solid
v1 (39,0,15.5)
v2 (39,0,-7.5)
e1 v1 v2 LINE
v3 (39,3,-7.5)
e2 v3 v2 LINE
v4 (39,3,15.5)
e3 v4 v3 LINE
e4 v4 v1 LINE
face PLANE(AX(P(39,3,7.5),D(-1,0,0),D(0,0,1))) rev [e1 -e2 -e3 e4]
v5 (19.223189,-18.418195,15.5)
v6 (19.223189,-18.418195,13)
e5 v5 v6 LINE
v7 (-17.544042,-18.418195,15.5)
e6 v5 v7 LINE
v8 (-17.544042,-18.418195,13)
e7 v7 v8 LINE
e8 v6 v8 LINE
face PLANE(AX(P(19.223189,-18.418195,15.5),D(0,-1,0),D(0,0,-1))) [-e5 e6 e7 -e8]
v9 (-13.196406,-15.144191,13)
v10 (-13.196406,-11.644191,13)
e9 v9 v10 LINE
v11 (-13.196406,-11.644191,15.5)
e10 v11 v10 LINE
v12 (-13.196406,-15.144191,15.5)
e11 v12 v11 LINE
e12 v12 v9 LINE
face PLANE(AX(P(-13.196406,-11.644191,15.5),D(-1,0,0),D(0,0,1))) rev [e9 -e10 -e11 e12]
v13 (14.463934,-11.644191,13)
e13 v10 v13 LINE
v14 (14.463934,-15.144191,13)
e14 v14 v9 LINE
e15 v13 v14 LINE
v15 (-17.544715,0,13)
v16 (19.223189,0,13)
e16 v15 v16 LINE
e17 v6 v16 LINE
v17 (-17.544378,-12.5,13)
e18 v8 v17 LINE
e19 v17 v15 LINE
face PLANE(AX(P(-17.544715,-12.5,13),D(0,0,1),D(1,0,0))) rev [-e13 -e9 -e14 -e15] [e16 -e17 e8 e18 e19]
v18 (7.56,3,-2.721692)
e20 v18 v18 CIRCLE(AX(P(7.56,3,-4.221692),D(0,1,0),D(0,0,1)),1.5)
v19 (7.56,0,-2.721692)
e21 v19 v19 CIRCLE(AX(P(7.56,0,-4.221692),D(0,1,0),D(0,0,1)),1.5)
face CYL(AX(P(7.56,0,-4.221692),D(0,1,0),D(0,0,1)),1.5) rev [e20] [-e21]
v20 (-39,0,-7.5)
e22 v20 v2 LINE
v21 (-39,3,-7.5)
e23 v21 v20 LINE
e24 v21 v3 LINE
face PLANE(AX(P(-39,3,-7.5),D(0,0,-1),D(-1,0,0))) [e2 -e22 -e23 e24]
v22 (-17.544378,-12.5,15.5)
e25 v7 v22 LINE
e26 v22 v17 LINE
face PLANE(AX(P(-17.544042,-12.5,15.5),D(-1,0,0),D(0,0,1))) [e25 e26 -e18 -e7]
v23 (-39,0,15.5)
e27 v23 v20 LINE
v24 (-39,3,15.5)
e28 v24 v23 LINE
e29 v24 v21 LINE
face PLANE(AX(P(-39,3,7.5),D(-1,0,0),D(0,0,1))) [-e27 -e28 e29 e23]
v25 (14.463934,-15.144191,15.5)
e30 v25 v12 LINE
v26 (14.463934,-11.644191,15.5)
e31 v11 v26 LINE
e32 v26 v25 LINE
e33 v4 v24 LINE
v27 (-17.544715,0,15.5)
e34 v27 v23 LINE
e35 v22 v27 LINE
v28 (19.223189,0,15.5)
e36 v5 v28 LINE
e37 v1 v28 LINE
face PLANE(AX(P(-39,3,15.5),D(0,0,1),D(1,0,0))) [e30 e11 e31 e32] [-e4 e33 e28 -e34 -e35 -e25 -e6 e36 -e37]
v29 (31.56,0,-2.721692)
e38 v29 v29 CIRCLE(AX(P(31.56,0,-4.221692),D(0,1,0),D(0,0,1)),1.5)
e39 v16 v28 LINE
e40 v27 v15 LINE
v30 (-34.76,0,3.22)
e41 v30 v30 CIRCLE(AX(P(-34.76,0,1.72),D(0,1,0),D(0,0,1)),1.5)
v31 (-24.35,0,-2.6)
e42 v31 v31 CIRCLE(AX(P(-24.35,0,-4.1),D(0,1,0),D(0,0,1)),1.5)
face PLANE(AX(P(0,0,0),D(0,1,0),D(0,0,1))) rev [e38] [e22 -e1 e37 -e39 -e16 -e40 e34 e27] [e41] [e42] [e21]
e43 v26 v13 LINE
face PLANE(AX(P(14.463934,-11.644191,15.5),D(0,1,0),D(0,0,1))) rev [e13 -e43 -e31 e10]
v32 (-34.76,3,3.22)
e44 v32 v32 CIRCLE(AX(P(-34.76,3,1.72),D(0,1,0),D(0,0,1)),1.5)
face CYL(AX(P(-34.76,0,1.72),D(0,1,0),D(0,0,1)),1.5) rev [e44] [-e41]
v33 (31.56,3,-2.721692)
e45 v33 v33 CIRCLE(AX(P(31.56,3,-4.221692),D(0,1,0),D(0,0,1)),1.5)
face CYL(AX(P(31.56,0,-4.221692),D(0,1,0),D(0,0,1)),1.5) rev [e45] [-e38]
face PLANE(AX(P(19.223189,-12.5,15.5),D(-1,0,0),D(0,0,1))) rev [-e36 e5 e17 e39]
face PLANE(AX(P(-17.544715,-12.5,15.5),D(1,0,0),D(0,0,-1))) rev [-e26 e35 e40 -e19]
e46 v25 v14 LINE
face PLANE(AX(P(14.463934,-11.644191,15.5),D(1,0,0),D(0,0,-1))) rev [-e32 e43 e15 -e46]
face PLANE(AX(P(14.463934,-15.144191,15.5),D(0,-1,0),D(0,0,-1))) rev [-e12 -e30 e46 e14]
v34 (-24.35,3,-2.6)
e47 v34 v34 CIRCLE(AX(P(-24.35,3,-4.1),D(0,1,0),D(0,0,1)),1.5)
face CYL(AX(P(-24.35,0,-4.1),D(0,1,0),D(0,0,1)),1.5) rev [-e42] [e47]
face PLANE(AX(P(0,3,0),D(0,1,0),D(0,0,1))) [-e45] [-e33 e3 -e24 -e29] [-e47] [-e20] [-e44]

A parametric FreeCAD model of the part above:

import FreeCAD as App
import Part
import Sketcher
from FreeCAD import Vector
Q = App.Units.Quantity


def add_polygon(sketch, points):
    """Adds a closed chain of lines whose ends are joined by coincident constraints."""
    first, n = sketch.GeometryCount, len(points)
    for a, b in zip(points, points[1:] + points[:1]):
        sketch.addGeometry(Part.LineSegment(App.Vector(*a, 0), App.Vector(*b, 0)), False)
    for i in range(n):
        sketch.addConstraint(Sketcher.Constraint("Coincident", first + i, 2, first + (i + 1) % n, 1))

doc = App.newDocument("Part")
body = doc.addObject("PartDesign::Body", "Body")

# Sketch on XZ plane
sketch1 = body.newObject("Sketcher::SketchObject", "Sketch")
sketch1.AttachmentSupport = (doc.getObject("XZ_Plane"), [""])
sketch1.MapMode = "FlatFace"
add_polygon(sketch1, [(-39, -8), (-39, 8), (39, 8), (39, -8)])  # lines 0-3
sketch1.addConstraint(Sketcher.Constraint("Vertical", 0))
sketch1.addConstraint(Sketcher.Constraint("Horizontal", 1))
sketch1.addConstraint(Sketcher.Constraint("Vertical", 2))
sketch1.addConstraint(Sketcher.Constraint("Horizontal", 3))
sketch1.addConstraint(Sketcher.Constraint("Symmetric", 0, 2, 2, 2, -1, 1))
sketch1.addConstraint(Sketcher.Constraint("DistanceX", 1, 1, 1, 2, Q("78 mm")))
sketch1.addConstraint(Sketcher.Constraint("DistanceY", 0, 1, 0, 2, Q("15 mm")))
pad1 = body.newObject("PartDesign::Pad", "Pad")
pad1.Profile = sketch1
pad1.Length = 3
pad1.Reversed = True

# Sketch on XZ plane
sketch2 = body.newObject("Sketcher::SketchObject", "Sketch001")
sketch2.AttachmentSupport = (doc.getObject("XZ_Plane"), [""])
sketch2.MapMode = "FlatFace"
sketch2.AttachmentOffset = App.Placement(Vector(0, 0, -3), App.Rotation())
sketch2.addGeometry(Part.Circle(Vector(-34.8, 1.7, 0), Vector(0, 0, 1), 1.5), False)
sketch2.addGeometry(Part.Circle(Vector(-24.4, -4.1, 0), Vector(0, 0, 1), 1.5), False)
sketch2.addGeometry(Part.Circle(Vector(31.6, -4.2, 0), Vector(0, 0, 1), 1.5), False)
sketch2.addGeometry(Part.Circle(Vector(7.6, -4.2, 0), Vector(0, 0, 1), 1.5), False)
sketch2.addConstraint(Sketcher.Constraint("Equal", 0, 1))
sketch2.addConstraint(Sketcher.Constraint("Equal", 1, 2))
sketch2.addConstraint(Sketcher.Constraint("Equal", 2, 3))
sketch2.addConstraint(Sketcher.Constraint("Horizontal", 2, 3, 3, 3))
sketch2.addConstraint(Sketcher.Constraint("Diameter", 0, Q("3 mm")))
sketch2.addConstraint(Sketcher.Constraint("DistanceX", 3, 3, 2, 3, Q("24 mm")))
sketch2.addConstraint(Sketcher.Constraint("DistanceY", 1, 3, -1, 1, Q("4.1 mm")))
sketch2.addConstraint(Sketcher.Constraint("DistanceX", 0, 3, -1, 1, Q("34.76 mm")))
sketch2.addConstraint(Sketcher.Constraint("DistanceY", -1, 1, 0, 3, Q("1.72 mm")))
sketch2.addConstraint(Sketcher.Constraint("DistanceX", 1, 3, -1, 1, Q("24.35 mm")))
sketch2.addConstraint(Sketcher.Constraint("DistanceX", -1, 1, 2, 3, Q("31.56 mm")))
sketch2.addConstraint(Sketcher.Constraint("DistanceY", 2, 3, -1, 1, Q("4.221692 mm")))
pocket1 = body.newObject("PartDesign::Pocket", "Pocket")
pocket1.Profile = sketch2
pocket1.Length = 3
pocket1.Reversed = True

# Sketch on XZ plane
sketch3 = body.newObject("Sketcher::SketchObject", "Sketch002")
sketch3.AttachmentSupport = (doc.getObject("XZ_Plane"), [""])
sketch3.MapMode = "FlatFace"
sketch3.AttachmentOffset = App.Placement(Vector(0, 0, -3), App.Rotation())
sketch3.addGeometry(Part.Circle(Vector(-3, 1, 0), Vector(0, 0, 1), 6), False)
sketch3.addConstraint(Sketcher.Constraint("Diameter", 0, Q("12 mm")))
sketch3.addConstraint(Sketcher.Constraint("DistanceX", 0, 3, -1, 1, Q("3 mm")))
sketch3.addConstraint(Sketcher.Constraint("DistanceY", -1, 1, 0, 3, Q("1.234165 mm")))
pad2 = body.newObject("PartDesign::Pad", "Pad001")
pad2.Profile = sketch3
pad2.Length = 18
pad2.Reversed = True

# Sketch on XZ plane
sketch4 = body.newObject("Sketcher::SketchObject", "Sketch003")
sketch4.AttachmentSupport = (doc.getObject("XZ_Plane"), [""])
sketch4.MapMode = "FlatFace"
sketch4.AttachmentOffset = App.Placement(Vector(0, 0, -21), App.Rotation())
sketch4.addGeometry(Part.Circle(Vector(-3, 1.2, 0), Vector(0, 0, 1), 4.5), False)
sketch4.addConstraint(Sketcher.Constraint("Diameter", 0, Q("9 mm")))
sketch4.addConstraint(Sketcher.Constraint("DistanceX", 0, 3, -1, 1, Q("3 mm")))
sketch4.addConstraint(Sketcher.Constraint("DistanceY", -1, 1, 0, 3, Q("1.234165 mm")))
pocket2 = body.newObject("PartDesign::Pocket", "Pocket001")
pocket2.Profile = sketch4
pocket2.Length = 21
pocket2.Reversed = True

# Sketch on an angled plane
sketch5 = body.newObject("Sketcher::SketchObject", "Sketch004")
sketch5.Placement = App.Placement(Vector(-7.484763, 0, 5.284905), App.Rotation(Vector(-0.576795601, 0, -0.816888508), Vector(0, -1, 0), Vector(-0.816888508, 0, 0.576795601), "ZXY"))
sketch5.addGeometry(Part.Circle(Vector(0.7, -17.3, 0), Vector(0, 0, 1), 1.5), False)
sketch5.addConstraint(Sketcher.Constraint("Diameter", 0, Q("3 mm")))
sketch5.addConstraint(Sketcher.Constraint("DistanceX", -1, 1, 0, 3, Q("0.722211 mm")))
sketch5.addConstraint(Sketcher.Constraint("DistanceY", 0, 3, -1, 1, Q("17.342107 mm")))
doc.recompute()
hole = body.newObject("PartDesign::Hole", "Hole")
hole.Profile = sketch5
hole.ThreadType = "None"
hole.Diameter = 3
hole.DepthType = "Dimension"
hole.Depth = 4.5
hole.DrillPoint = "Angled"
hole.DrillPointAngle = 90

# Sketch on an angled plane
sketch6 = body.newObject("Sketcher::SketchObject", "Sketch005")
sketch6.Placement = App.Placement(Vector(3.305316, 0, 3.577367), App.Rotation(Vector(0.734483043, 0, -0.67862704), Vector(0, 1, 0), Vector(0.67862704, 0, 0.734483043), "ZXY"))
sketch6.addGeometry(Part.Circle(Vector(-3, 17.2, 0), Vector(0, 0, 1), 1.5), False)
sketch6.addConstraint(Sketcher.Constraint("Diameter", 0, Q("3 mm")))
sketch6.addConstraint(Sketcher.Constraint("DistanceX", 0, 3, -1, 1, Q("3.040983 mm")))
sketch6.addConstraint(Sketcher.Constraint("DistanceY", -1, 1, 0, 3, Q("17.164817 mm")))
doc.recompute()
hole2 = body.newObject("PartDesign::Hole", "Hole001")
hole2.Profile = sketch6
hole2.ThreadType = "None"
hole2.Diameter = 3
hole2.DepthType = "Dimension"
hole2.Depth = 4.5
hole2.DrillPoint = "Angled"
hole2.DrillPointAngle = 90

# Sketch on XY plane
sketch7 = body.newObject("Sketcher::SketchObject", "Sketch006")
sketch7.AttachmentSupport = (doc.getObject("XY_Plane"), [""])
sketch7.MapMode = "FlatFace"
sketch7.AttachmentOffset = App.Placement(Vector(0, 0, -7.5), App.Rotation())
add_polygon(sketch7, [(0, 13), (0, 3), (-6, 3), (-6, 13)])  # lines 0-3
sketch7.addConstraint(Sketcher.Constraint("Vertical", 0))
sketch7.addConstraint(Sketcher.Constraint("Horizontal", 1))
sketch7.addConstraint(Sketcher.Constraint("Vertical", 2))
sketch7.addConstraint(Sketcher.Constraint("Horizontal", 3))
sketch7.addConstraint(Sketcher.Constraint("PointOnObject", 0, 2, -2))
sketch7.addConstraint(Sketcher.Constraint("DistanceX", 1, 2, 1, 1, Q("6 mm")))
sketch7.addConstraint(Sketcher.Constraint("DistanceY", 0, 2, 0, 1, Q("10 mm")))
sketch7.addConstraint(Sketcher.Constraint("DistanceY", -1, 1, 0, 2, Q("3 mm")))
pocket3 = body.newObject("PartDesign::Pocket", "Pocket002")
pocket3.Profile = sketch7
pocket3.Length = 7
pocket3.Reversed = True

# Sketch on XY plane
sketch8 = body.newObject("Sketcher::SketchObject", "Sketch007")
sketch8.AttachmentSupport = (doc.getObject("XY_Plane"), [""])
sketch8.MapMode = "FlatFace"
sketch8.AttachmentOffset = App.Placement(Vector(0, 0, -7.5), App.Rotation())
add_polygon(sketch8, [(7, 25), (7, 3), (-13, 3), (-13, 25)])  # lines 0-3
sketch8.addConstraint(Sketcher.Constraint("Vertical", 0))
sketch8.addConstraint(Sketcher.Constraint("Horizontal", 1))
sketch8.addConstraint(Sketcher.Constraint("Vertical", 2))
sketch8.addConstraint(Sketcher.Constraint("Horizontal", 3))
sketch8.addConstraint(Sketcher.Constraint("DistanceY", -1, 1, 0, 2, Q("3 mm")))
sketch8.addConstraint(Sketcher.Constraint("DistanceX", 1, 2, 1, 1, Q("19.835687 mm")))
sketch8.addConstraint(Sketcher.Constraint("DistanceY", 0, 2, 0, 1, Q("21.610205 mm")))
sketch8.addConstraint(Sketcher.Constraint("DistanceX", -1, 1, 0, 2, Q("6.603423 mm")))
pocket4 = body.newObject("PartDesign::Pocket", "Pocket003")
pocket4.Profile = sketch8
pocket4.Length = 20
pocket4.Reversed = True

# Sketch on XZ plane
sketch9 = body.newObject("Sketcher::SketchObject", "Sketch008")
sketch9.AttachmentSupport = (doc.getObject("XZ_Plane"), [""])
sketch9.MapMode = "FlatFace"
sketch9.AttachmentOffset = App.Placement(Vector(0, 0, -3), App.Rotation())
add_polygon(sketch9, [(-9, -4), (-9, 7), (3, 7), (3, -4)])  # lines 0-3
sketch9.addConstraint(Sketcher.Constraint("Vertical", 0))
sketch9.addConstraint(Sketcher.Constraint("Horizontal", 1))
sketch9.addConstraint(Sketcher.Constraint("Vertical", 2))
sketch9.addConstraint(Sketcher.Constraint("Horizontal", 3))
sketch9.addConstraint(Sketcher.Constraint("DistanceX", 1, 1, 1, 2, Q("11.523038 mm")))
sketch9.addConstraint(Sketcher.Constraint("DistanceY", 0, 1, 0, 2, Q("10.490313 mm")))
sketch9.addConstraint(Sketcher.Constraint("DistanceY", -1, 1, 0, 2, Q("6.50865 mm")))
sketch9.addConstraint(Sketcher.Constraint("DistanceX", -1, 1, 1, 2, Q("2.772052 mm")))
pad3 = body.newObject("PartDesign::Pad", "Pad002")
pad3.Profile = sketch9
pad3.Length = 3

# Sketch on XZ plane
sketch10 = body.newObject("Sketcher::SketchObject", "Sketch009")
sketch10.AttachmentSupport = (doc.getObject("XZ_Plane"), [""])
sketch10.MapMode = "FlatFace"
add_polygon(sketch10, [(-39, 16), (-39, 8), (39, 8), (39, 16)])  # lines 0-3
sketch10.addConstraint(Sketcher.Constraint("Vertical", 0))
sketch10.addConstraint(Sketcher.Constraint("Horizontal", 1))
sketch10.addConstraint(Sketcher.Constraint("Vertical", 2))
sketch10.addConstraint(Sketcher.Constraint("Horizontal", 3))
sketch10.addConstraint(Sketcher.Constraint("DistanceX", 1, 1, 1, 2, Q("78 mm")))
sketch10.addConstraint(Sketcher.Constraint("DistanceY", 0, 2, 0, 1, Q("8 mm")))
sketch10.addConstraint(Sketcher.Constraint("DistanceX", 0, 2, -1, 1, Q("39 mm")))
sketch10.addConstraint(Sketcher.Constraint("DistanceY", -1, 1, 0, 2, Q("7.5 mm")))
pad4 = body.newObject("PartDesign::Pad", "Pad003")
pad4.Profile = sketch10
pad4.Length = 3
pad4.Reversed = True

# Sketch on XZ plane
sketch11 = body.newObject("Sketcher::SketchObject", "Sketch010")
sketch11.AttachmentSupport = (doc.getObject("XZ_Plane"), [""])
sketch11.MapMode = "FlatFace"
add_polygon(sketch11, [(-17.5, 15.5), (-17.5, 13), (19.2, 13), (19.2, 15.5)])  # lines 0-3
sketch11.addConstraint(Sketcher.Constraint("Vertical", 0))
sketch11.addConstraint(Sketcher.Constraint("Horizontal", 1))
sketch11.addConstraint(Sketcher.Constraint("Vertical", 2))
sketch11.addConstraint(Sketcher.Constraint("Horizontal", 3))
sketch11.addConstraint(Sketcher.Constraint("DistanceY", 0, 2, 0, 1, Q("2.5 mm")))
sketch11.addConstraint(Sketcher.Constraint("DistanceY", -1, 1, 0, 2, Q("13 mm")))
sketch11.addConstraint(Sketcher.Constraint("DistanceX", 1, 1, 1, 2, Q("36.767904 mm")))
sketch11.addConstraint(Sketcher.Constraint("DistanceX", -1, 1, 1, 2, Q("19.223189 mm")))
pad5 = body.newObject("PartDesign::Pad", "Pad004")
pad5.Profile = sketch11
pad5.Length = 12.5

# Sketch on XY plane
sketch12 = body.newObject("Sketcher::SketchObject", "Sketch011")
sketch12.AttachmentSupport = (doc.getObject("XY_Plane"), [""])
sketch12.MapMode = "FlatFace"
sketch12.AttachmentOffset = App.Placement(Vector(0, 0, 13), App.Rotation())
sketch12.addGeometry(Part.Circle(Vector(8.6, -6.1, 0), Vector(0, 0, 1), 1.6), False)
sketch12.addGeometry(Part.Circle(Vector(-2.6, -6.1, 0), Vector(0, 0, 1), 1.6), False)
sketch12.addConstraint(Sketcher.Constraint("Equal", 0, 1))
sketch12.addConstraint(Sketcher.Constraint("Horizontal", 0, 3, 1, 3))
sketch12.addConstraint(Sketcher.Constraint("Diameter", 0, Q("3.3 mm")))
sketch12.addConstraint(Sketcher.Constraint("DistanceX", 1, 3, 0, 3, Q("11.2 mm")))
sketch12.addConstraint(Sketcher.Constraint("DistanceX", -1, 1, 0, 3, Q("8.603189 mm")))
sketch12.addConstraint(Sketcher.Constraint("DistanceY", 0, 3, -1, 1, Q("6.055923 mm")))
pocket5 = body.newObject("PartDesign::Pocket", "Pocket004")
pocket5.Profile = sketch12
pocket5.Length = 12.5
pocket5.Reversed = True

# Sketch on XY plane
sketch13 = body.newObject("Sketcher::SketchObject", "Sketch012")
sketch13.AttachmentSupport = (doc.getObject("XY_Plane"), [""])
sketch13.MapMode = "FlatFace"
sketch13.AttachmentOffset = App.Placement(Vector(0, 0, 13), App.Rotation())
add_polygon(sketch13, [(-0.2, -3.7), (-0.2, -9.1), (-4.4, -9.1), (-4.4, -3.7)])  # lines 0-3
sketch13.addConstraint(Sketcher.Constraint("Vertical", 0))
sketch13.addConstraint(Sketcher.Constraint("Horizontal", 1))
sketch13.addConstraint(Sketcher.Constraint("Vertical", 2))
sketch13.addConstraint(Sketcher.Constraint("Horizontal", 3))
sketch13.addConstraint(Sketcher.Constraint("DistanceY", 0, 2, 0, 1, Q("5.364092 mm")))
sketch13.addConstraint(Sketcher.Constraint("DistanceX", 1, 2, 1, 1, Q("4.236608 mm")))
sketch13.addConstraint(Sketcher.Constraint("DistanceX", 0, 2, -1, 1, Q("0.212365 mm")))
sketch13.addConstraint(Sketcher.Constraint("DistanceY", 0, 2, -1, 1, Q("9.108527 mm")))
pad6 = body.newObject("PartDesign::Pad", "Pad005")
pad6.Profile = sketch13
pad6.Length = 2.5

# Sketch on XY plane
sketch14 = body.newObject("Sketcher::SketchObject", "Sketch013")
sketch14.AttachmentSupport = (doc.getObject("XY_Plane"), [""])
sketch14.MapMode = "FlatFace"
sketch14.AttachmentOffset = App.Placement(Vector(0, 0, 13), App.Rotation())
sketch14.addGeometry(Part.Circle(Vector(-4.2, -6.1, 0), Vector(0, 0, 1), 1.6), False)
sketch14.addConstraint(Sketcher.Constraint("Diameter", 0, Q("3.2 mm")))
sketch14.addConstraint(Sketcher.Constraint("DistanceX", 0, 3, -1, 1, Q("4.196811 mm")))
sketch14.addConstraint(Sketcher.Constraint("DistanceY", 0, 3, -1, 1, Q("6.055923 mm")))
pocket6 = body.newObject("PartDesign::Pocket", "Pocket005")
pocket6.Profile = sketch14
pocket6.Length = 2.5
pocket6.Reversed = True

# Sketch on XY plane
sketch15 = body.newObject("Sketcher::SketchObject", "Sketch014")
sketch15.AttachmentSupport = (doc.getObject("XY_Plane"), [""])
sketch15.MapMode = "FlatFace"
sketch15.AttachmentOffset = App.Placement(Vector(0, 0, 13), App.Rotation())
add_polygon(sketch15, [(13, -3), (13, -10), (-8, -10), (-8, -3)])  # lines 0-3
sketch15.addConstraint(Sketcher.Constraint("Vertical", 0))
sketch15.addConstraint(Sketcher.Constraint("Horizontal", 1))
sketch15.addConstraint(Sketcher.Constraint("Vertical", 2))
sketch15.addConstraint(Sketcher.Constraint("Horizontal", 3))
sketch15.addConstraint(Sketcher.Constraint("DistanceX", 1, 2, 1, 1, Q("21.346012 mm")))
sketch15.addConstraint(Sketcher.Constraint("DistanceY", 0, 2, 0, 1, Q("6.594355 mm")))
sketch15.addConstraint(Sketcher.Constraint("DistanceY", 0, 2, -1, 1, Q("9.988919 mm")))
sketch15.addConstraint(Sketcher.Constraint("DistanceX", 1, 2, -1, 1, Q("8.29369 mm")))
pad7 = body.newObject("PartDesign::Pad", "Pad006")
pad7.Profile = sketch15
pad7.Length = 2.5

# Sketch on XY plane
sketch16 = body.newObject("Sketcher::SketchObject", "Sketch015")
sketch16.AttachmentSupport = (doc.getObject("XY_Plane"), [""])
sketch16.MapMode = "FlatFace"
sketch16.AttachmentOffset = App.Placement(Vector(0, 0, 13), App.Rotation())
add_polygon(sketch16, [(19, -12), (19, -18), (-18, -18), (-18, -12)])  # lines 0-3
sketch16.addConstraint(Sketcher.Constraint("Vertical", 0))
sketch16.addConstraint(Sketcher.Constraint("Horizontal", 1))
sketch16.addConstraint(Sketcher.Constraint("Vertical", 2))
sketch16.addConstraint(Sketcher.Constraint("Horizontal", 3))
sketch16.addConstraint(Sketcher.Constraint("DistanceY", 2, 2, -1, 1, Q("12.5 mm")))
sketch16.addConstraint(Sketcher.Constraint("DistanceX", 1, 2, 1, 1, Q("36.767231 mm")))
sketch16.addConstraint(Sketcher.Constraint("DistanceY", 0, 2, 0, 1, Q("5.918195 mm")))
sketch16.addConstraint(Sketcher.Constraint("DistanceX", -1, 1, 0, 2, Q("19.223189 mm")))
pad8 = body.newObject("PartDesign::Pad", "Pad007")
pad8.Profile = sketch16
pad8.Length = 2.5

# Sketch on XY plane
sketch17 = body.newObject("Sketcher::SketchObject", "Sketch016")
sketch17.AttachmentSupport = (doc.getObject("XY_Plane"), [""])
sketch17.MapMode = "FlatFace"
sketch17.AttachmentOffset = App.Placement(Vector(0, 0, 13), App.Rotation())
add_polygon(sketch17, [(14.5, -11.6), (14.5, -15.1), (-13.2, -15.1), (-13.2, -11.6)])  # lines 0-3
sketch17.addConstraint(Sketcher.Constraint("Vertical", 0))
sketch17.addConstraint(Sketcher.Constraint("Horizontal", 1))
sketch17.addConstraint(Sketcher.Constraint("Vertical", 2))
sketch17.addConstraint(Sketcher.Constraint("Horizontal", 3))
sketch17.addConstraint(Sketcher.Constraint("DistanceY", 0, 2, 0, 1, Q("3.5 mm")))
sketch17.addConstraint(Sketcher.Constraint("DistanceX", 1, 2, 1, 1, Q("27.66034 mm")))
sketch17.addConstraint(Sketcher.Constraint("DistanceY", 0, 2, -1, 1, Q("15.144191 mm")))
sketch17.addConstraint(Sketcher.Constraint("DistanceX", -1, 1, 0, 2, Q("14.463934 mm")))
pocket7 = body.newObject("PartDesign::Pocket", "Pocket006")
pocket7.Profile = sketch17
pocket7.Length = 2.5
pocket7.Reversed = True

doc.recompute()
